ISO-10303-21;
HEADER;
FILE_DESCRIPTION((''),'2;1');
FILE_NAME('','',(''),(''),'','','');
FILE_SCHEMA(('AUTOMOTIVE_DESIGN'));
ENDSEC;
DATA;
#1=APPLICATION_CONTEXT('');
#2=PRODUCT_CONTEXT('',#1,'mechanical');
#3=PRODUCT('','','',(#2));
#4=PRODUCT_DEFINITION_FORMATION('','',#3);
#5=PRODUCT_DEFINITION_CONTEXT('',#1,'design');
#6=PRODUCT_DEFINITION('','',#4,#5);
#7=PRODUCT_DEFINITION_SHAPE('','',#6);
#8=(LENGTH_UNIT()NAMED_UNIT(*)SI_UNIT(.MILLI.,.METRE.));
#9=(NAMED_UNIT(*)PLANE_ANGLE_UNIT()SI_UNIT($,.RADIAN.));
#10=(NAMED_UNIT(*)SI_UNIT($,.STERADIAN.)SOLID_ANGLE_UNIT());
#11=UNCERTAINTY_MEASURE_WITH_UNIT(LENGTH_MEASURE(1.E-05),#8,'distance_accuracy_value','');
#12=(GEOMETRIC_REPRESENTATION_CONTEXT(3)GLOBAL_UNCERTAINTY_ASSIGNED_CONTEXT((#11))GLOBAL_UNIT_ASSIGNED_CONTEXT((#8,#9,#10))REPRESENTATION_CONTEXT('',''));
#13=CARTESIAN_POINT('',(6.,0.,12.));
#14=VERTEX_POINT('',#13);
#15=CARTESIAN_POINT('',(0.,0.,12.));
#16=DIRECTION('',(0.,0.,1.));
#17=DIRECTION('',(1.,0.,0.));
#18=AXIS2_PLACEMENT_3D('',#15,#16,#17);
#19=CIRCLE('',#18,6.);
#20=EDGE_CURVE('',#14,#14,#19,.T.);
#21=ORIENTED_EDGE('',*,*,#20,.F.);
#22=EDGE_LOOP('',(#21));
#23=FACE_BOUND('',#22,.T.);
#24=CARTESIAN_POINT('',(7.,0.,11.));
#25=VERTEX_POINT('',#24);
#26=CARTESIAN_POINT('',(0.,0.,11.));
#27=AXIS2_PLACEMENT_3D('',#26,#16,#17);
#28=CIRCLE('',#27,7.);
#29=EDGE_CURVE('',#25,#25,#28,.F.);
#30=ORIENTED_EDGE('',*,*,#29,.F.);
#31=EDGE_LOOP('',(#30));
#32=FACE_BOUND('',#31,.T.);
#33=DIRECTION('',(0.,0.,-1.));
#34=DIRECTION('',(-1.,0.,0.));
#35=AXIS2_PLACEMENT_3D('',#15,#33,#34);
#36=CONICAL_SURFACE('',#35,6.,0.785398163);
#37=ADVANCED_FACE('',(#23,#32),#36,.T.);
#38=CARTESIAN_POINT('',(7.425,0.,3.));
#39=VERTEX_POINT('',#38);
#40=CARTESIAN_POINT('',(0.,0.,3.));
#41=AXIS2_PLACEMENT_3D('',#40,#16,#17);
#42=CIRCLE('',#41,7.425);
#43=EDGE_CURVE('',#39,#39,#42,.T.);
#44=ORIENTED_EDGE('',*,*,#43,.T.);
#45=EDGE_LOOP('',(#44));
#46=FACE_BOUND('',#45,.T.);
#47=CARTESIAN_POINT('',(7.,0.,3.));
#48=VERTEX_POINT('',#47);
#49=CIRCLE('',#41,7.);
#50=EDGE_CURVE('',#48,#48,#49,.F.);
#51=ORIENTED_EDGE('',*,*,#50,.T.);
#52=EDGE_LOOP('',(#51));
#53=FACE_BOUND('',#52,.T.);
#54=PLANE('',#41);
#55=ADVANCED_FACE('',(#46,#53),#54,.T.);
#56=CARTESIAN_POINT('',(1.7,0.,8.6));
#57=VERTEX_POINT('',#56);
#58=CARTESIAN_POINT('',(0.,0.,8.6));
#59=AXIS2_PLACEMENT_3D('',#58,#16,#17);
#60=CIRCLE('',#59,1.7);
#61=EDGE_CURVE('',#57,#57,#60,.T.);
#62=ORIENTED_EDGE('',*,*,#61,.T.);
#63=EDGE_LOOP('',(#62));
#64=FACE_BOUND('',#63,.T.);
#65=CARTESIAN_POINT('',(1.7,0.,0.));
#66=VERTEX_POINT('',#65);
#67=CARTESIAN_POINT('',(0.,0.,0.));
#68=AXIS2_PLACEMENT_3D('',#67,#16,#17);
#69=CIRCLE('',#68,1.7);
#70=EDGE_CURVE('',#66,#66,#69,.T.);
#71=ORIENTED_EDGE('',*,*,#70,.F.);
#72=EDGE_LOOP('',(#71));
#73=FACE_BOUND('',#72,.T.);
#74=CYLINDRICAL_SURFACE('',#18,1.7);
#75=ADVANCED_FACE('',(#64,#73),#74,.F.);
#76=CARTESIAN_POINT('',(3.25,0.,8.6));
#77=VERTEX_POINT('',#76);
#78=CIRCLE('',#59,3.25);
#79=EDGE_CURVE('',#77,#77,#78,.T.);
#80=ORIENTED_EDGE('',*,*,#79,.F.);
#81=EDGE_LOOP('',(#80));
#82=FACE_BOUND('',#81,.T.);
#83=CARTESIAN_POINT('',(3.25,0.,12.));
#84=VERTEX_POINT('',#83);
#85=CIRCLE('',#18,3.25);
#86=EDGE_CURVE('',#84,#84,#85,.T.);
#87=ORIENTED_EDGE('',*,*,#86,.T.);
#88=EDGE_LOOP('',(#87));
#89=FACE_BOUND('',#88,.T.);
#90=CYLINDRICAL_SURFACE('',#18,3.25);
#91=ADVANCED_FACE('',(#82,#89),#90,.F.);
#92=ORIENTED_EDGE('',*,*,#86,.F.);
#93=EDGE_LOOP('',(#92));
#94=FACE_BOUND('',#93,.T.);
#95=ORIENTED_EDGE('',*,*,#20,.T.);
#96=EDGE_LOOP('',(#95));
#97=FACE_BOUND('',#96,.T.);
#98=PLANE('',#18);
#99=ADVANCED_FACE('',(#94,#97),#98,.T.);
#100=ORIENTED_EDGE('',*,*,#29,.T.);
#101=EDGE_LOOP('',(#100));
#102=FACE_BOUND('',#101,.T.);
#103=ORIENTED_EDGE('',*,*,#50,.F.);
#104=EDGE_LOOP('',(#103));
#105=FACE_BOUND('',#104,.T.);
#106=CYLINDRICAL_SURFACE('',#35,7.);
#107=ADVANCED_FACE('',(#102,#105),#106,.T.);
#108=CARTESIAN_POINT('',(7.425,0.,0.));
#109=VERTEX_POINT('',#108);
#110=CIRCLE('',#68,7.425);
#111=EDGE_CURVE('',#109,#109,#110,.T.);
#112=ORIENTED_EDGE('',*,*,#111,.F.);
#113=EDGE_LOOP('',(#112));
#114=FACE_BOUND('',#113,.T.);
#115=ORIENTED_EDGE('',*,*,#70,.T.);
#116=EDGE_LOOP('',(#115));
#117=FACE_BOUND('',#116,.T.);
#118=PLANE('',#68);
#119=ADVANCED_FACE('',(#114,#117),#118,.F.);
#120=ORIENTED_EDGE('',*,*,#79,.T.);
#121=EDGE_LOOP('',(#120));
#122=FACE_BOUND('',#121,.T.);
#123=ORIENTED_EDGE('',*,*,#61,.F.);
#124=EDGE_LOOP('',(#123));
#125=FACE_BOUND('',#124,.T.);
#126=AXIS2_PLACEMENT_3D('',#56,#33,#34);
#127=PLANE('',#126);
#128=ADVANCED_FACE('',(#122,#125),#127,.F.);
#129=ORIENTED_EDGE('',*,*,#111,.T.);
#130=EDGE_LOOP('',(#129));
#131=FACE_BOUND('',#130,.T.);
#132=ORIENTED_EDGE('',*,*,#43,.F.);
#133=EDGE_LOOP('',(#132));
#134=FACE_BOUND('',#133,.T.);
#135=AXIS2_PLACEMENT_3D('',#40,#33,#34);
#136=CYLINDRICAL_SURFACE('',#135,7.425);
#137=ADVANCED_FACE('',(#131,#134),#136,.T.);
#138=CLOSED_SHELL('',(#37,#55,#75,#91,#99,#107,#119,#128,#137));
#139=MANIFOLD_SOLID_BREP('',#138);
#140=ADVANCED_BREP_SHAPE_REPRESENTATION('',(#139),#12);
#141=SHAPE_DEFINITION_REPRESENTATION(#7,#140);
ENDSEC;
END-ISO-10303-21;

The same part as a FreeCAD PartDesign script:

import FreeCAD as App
import Part
import Sketcher
from FreeCAD import Vector
Q = App.Units.Quantity


def edges_at(feature, points):
    """Names of the edges that pass closest to the given points."""
    edges = feature.Shape.Edges
    near = lambda p: min(range(len(edges)), key=lambda i: edges[i].distToShape(Part.Vertex(*p))[0])
    return sorted({f"Edge{near(p) + 1}" for p in points})

doc = App.newDocument("Part")
body = doc.addObject("PartDesign::Body", "Body")

sketch1 = body.newObject("Sketcher::SketchObject", "Sketch")
sketch1.AttachmentSupport = (doc.getObject("XY_Plane"), [""])
sketch1.MapMode = "FlatFace"
sketch1.addGeometry(Part.Circle(Vector(0, 0, 0), Vector(0, 0, 1), 7), False)
sketch1.addConstraint(Sketcher.Constraint("Coincident", 0, 3, -1, 1))
sketch1.addConstraint(Sketcher.Constraint("Diameter", 0, Q("14.85 mm")))
pad1 = body.newObject("PartDesign::Pad", "Pad")
pad1.Profile = sketch1
pad1.Length = 3

sketch2 = body.newObject("Sketcher::SketchObject", "Sketch001")
sketch2.AttachmentSupport = (doc.getObject("XY_Plane"), [""])
sketch2.MapMode = "FlatFace"
sketch2.addGeometry(Part.Circle(Vector(0, 0, 0), Vector(0, 0, 1), 7), False)
sketch2.addConstraint(Sketcher.Constraint("Coincident", 0, 3, -1, 1))
sketch2.addConstraint(Sketcher.Constraint("Diameter", 0, Q("14 mm")))
pad2 = body.newObject("PartDesign::Pad", "Pad001")
pad2.Profile = sketch2
pad2.Length = 12

sketch3 = body.newObject("Sketcher::SketchObject", "Sketch002")
sketch3.AttachmentSupport = (doc.getObject("XY_Plane"), [""])
sketch3.MapMode = "FlatFace"
sketch3.AttachmentOffset = App.Placement(Vector(0, 0, 12), App.Rotation())
sketch3.addGeometry(Part.Circle(Vector(0, 0, 0), Vector(0, 0, 1), 1.7), False)
sketch3.addConstraint(Sketcher.Constraint("Coincident", 0, 3, -1, 1))
sketch3.addConstraint(Sketcher.Constraint("Diameter", 0, Q("3.4 mm")))
doc.recompute()
hole = body.newObject("PartDesign::Hole", "Hole")
hole.Profile = sketch3
hole.ThreadType = "None"
hole.Diameter = 3.4
hole.DepthType = "ThroughAll"
hole.HoleCutType = "Counterbore"
hole.HoleCutDiameter = 6.5
hole.HoleCutDepth = 3.4
doc.recompute()

chamfer = body.newObject("PartDesign::Chamfer", "Chamfer")
chamfer.Base = (hole, edges_at(hole, [(-7, 0, 12)]))
chamfer.Size = 1

doc.recompute()
